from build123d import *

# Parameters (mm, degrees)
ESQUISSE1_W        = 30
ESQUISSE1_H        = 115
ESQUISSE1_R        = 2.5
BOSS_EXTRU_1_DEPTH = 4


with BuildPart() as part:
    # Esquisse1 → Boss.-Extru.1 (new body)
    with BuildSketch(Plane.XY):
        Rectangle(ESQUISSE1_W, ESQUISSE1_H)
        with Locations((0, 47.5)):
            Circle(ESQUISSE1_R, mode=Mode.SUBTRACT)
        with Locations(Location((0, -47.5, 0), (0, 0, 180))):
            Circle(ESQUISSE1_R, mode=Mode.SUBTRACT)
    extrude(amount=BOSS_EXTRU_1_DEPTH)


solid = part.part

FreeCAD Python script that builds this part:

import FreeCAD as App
import Part
import Sketcher

V = App.Vector


def add_polygon(sketch, points):
    """Adds a closed chain of lines whose ends are joined by coincident constraints."""
    first, n = sketch.GeometryCount, len(points)
    for a, b in zip(points, points[1:] + points[:1]):
        sketch.addGeometry(Part.LineSegment(App.Vector(*a, 0), App.Vector(*b, 0)), False)
    for i in range(n):
        sketch.addConstraint(Sketcher.Constraint("Coincident", first + i, 2, first + (i + 1) % n, 1))

doc = App.newDocument("Part")
body = doc.addObject("PartDesign::Body", "Body")

# Sketch on XY plane
sketch1 = body.newObject("Sketcher::SketchObject", "Sketch")
sketch1.AttachmentSupport = (doc.getObject("XY_Plane"), [""])
sketch1.MapMode = "FlatFace"
add_polygon(sketch1, [(-15, 57.5), (-15, -57.5), (15, -57.5), (15, 57.5)])  # lines 0-3
sketch1.addGeometry(Part.Circle(V(0, -47.5, 0), V(0, 0, 1), 2.5), False)  # 4
sketch1.addGeometry(Part.Circle(V(0, 47.5, 0), V(0, 0, 1), 2.5), False)  # 5
sketch1.addConstraint(Sketcher.Constraint("Vertical", 0))
sketch1.addConstraint(Sketcher.Constraint("Horizontal", 1))
sketch1.addConstraint(Sketcher.Constraint("Vertical", 2))
sketch1.addConstraint(Sketcher.Constraint("Horizontal", 3))
sketch1.addConstraint(Sketcher.Constraint("Equal", 4, 5))
sketch1.addConstraint(Sketcher.Constraint("Symmetric", 4, 3, 5, 3, -1, 1))
sketch1.addConstraint(Sketcher.Constraint("Symmetric", 0, 2, 2, 2, -1, 1))
sketch1.addConstraint(Sketcher.Constraint("PointOnObject", 4, 3, -2))
sketch1.addConstraint(Sketcher.Constraint("Diameter", 4, 5.0))
sketch1.addConstraint(Sketcher.Constraint("DistanceX", 1, 1, 1, 2, 30.0))
sketch1.addConstraint(Sketcher.Constraint("DistanceY", 0, 2, 0, 1, 115.0))
sketch1.addConstraint(Sketcher.Constraint("DistanceY", 4, 3, 5, 3, 95.0))
pad1 = body.newObject("PartDesign::Pad", "Pad")
pad1.Profile = sketch1
pad1.Length = 4

doc.recompute()
